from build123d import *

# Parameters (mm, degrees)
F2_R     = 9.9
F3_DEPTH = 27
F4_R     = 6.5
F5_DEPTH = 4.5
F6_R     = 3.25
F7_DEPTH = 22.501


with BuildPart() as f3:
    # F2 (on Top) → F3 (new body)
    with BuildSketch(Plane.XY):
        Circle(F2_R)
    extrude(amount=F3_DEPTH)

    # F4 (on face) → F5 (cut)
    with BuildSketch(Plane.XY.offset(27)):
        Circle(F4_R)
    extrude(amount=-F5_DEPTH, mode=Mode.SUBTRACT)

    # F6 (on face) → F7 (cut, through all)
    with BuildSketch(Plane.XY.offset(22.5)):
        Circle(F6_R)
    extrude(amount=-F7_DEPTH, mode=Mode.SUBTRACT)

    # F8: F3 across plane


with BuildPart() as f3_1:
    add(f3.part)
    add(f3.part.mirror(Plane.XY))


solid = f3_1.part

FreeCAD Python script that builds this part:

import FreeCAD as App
import Part
import Sketcher

doc = App.newDocument("Part")
params = doc.addObject("Spreadsheet::Sheet", "Params")
for row, (alias, value) in enumerate([
    ("sketch1_diameter", "19.8 mm"),
    ("pad1_length", "27 mm"),
    ("sketch2_diameter", "13 mm"),
    ("pocket1_length", "4.5 mm"),
    ("sketch3_diameter", "6.5 mm"),
], start=1):
    params.set(f"A{row}", alias)
    params.set(f"B{row}", "=" + value)
    params.setAlias(f"B{row}", alias)

body = doc.addObject("PartDesign::Body", "Body")

# Sketch on XY plane
sketch1 = body.newObject("Sketcher::SketchObject", "Sketch")
sketch1.AttachmentSupport = (doc.getObject("XY_Plane"), [""])
sketch1.MapMode = "FlatFace"
sketch1.addGeometry(Part.Circle(App.Vector(0, 0, 0), App.Vector(0, 0, 1), 10), False)
sketch1.addConstraint([
    Sketcher.Constraint("Coincident", 0, 3, -1, 1),
    Sketcher.Constraint("Diameter", 0, 19.8),
])
sketch1.setExpression("Constraints[1]", "Params.sketch1_diameter")
pad1 = body.newObject("PartDesign::Pad", "Pad")
pad1.Profile = sketch1
pad1.setExpression("Length", "Params.pad1_length")

# Sketch on XY plane
sketch2 = body.newObject("Sketcher::SketchObject", "Sketch001")
sketch2.AttachmentSupport = (doc.getObject("XY_Plane"), [""])
sketch2.MapMode = "FlatFace"
sketch2.AttachmentOffset = App.Placement(App.Vector(0, 0, 27), App.Rotation())
sketch2.addGeometry(Part.Circle(App.Vector(0, 0, 0), App.Vector(0, 0, 1), 6), False)
sketch2.addConstraint([
    Sketcher.Constraint("Coincident", 0, 3, -1, 1),
    Sketcher.Constraint("Diameter", 0, 13.0),
])
sketch2.setExpression("Constraints[1]", "Params.sketch2_diameter")
pocket1 = body.newObject("PartDesign::Pocket", "Pocket")
pocket1.Profile = sketch2
pocket1.setExpression("Length", "Params.pocket1_length")

# Sketch on XY plane
sketch3 = body.newObject("Sketcher::SketchObject", "Sketch002")
sketch3.AttachmentSupport = (doc.getObject("XY_Plane"), [""])
sketch3.MapMode = "FlatFace"
sketch3.AttachmentOffset = App.Placement(App.Vector(0, 0, 22.5), App.Rotation())
sketch3.addGeometry(Part.Circle(App.Vector(0, 0, 0), App.Vector(0, 0, 1), 3.2), False)
sketch3.addConstraint([
    Sketcher.Constraint("Coincident", 0, 3, -1, 1),
    Sketcher.Constraint("Diameter", 0, 6.5),
])
sketch3.setExpression("Constraints[1]", "Params.sketch3_diameter")
pocket2 = body.newObject("PartDesign::Pocket", "Pocket001")
pocket2.Profile = sketch3
pocket2.Type = "ThroughAll"
body2 = doc.addObject("PartDesign::Body", "Body001")
doc.recompute()

body2.BaseFeature = body
doc.recompute()

mirroring = doc.addObject("Part::Mirroring", "Mirroring")
mirroring.Source = body
mirroring.Base = App.Vector(0, 0, 0)
mirroring.Normal = App.Vector(0, 0, 1)
body3 = doc.addObject("PartDesign::Body", "Body002")
body3.BaseFeature = mirroring
boolean = body2.newObject("PartDesign::Boolean", "Boolean")
boolean.Type = "Fuse"
boolean.addObjects([body3])
doc.recompute()
mirroring.Visibility = False

doc.recompute()
